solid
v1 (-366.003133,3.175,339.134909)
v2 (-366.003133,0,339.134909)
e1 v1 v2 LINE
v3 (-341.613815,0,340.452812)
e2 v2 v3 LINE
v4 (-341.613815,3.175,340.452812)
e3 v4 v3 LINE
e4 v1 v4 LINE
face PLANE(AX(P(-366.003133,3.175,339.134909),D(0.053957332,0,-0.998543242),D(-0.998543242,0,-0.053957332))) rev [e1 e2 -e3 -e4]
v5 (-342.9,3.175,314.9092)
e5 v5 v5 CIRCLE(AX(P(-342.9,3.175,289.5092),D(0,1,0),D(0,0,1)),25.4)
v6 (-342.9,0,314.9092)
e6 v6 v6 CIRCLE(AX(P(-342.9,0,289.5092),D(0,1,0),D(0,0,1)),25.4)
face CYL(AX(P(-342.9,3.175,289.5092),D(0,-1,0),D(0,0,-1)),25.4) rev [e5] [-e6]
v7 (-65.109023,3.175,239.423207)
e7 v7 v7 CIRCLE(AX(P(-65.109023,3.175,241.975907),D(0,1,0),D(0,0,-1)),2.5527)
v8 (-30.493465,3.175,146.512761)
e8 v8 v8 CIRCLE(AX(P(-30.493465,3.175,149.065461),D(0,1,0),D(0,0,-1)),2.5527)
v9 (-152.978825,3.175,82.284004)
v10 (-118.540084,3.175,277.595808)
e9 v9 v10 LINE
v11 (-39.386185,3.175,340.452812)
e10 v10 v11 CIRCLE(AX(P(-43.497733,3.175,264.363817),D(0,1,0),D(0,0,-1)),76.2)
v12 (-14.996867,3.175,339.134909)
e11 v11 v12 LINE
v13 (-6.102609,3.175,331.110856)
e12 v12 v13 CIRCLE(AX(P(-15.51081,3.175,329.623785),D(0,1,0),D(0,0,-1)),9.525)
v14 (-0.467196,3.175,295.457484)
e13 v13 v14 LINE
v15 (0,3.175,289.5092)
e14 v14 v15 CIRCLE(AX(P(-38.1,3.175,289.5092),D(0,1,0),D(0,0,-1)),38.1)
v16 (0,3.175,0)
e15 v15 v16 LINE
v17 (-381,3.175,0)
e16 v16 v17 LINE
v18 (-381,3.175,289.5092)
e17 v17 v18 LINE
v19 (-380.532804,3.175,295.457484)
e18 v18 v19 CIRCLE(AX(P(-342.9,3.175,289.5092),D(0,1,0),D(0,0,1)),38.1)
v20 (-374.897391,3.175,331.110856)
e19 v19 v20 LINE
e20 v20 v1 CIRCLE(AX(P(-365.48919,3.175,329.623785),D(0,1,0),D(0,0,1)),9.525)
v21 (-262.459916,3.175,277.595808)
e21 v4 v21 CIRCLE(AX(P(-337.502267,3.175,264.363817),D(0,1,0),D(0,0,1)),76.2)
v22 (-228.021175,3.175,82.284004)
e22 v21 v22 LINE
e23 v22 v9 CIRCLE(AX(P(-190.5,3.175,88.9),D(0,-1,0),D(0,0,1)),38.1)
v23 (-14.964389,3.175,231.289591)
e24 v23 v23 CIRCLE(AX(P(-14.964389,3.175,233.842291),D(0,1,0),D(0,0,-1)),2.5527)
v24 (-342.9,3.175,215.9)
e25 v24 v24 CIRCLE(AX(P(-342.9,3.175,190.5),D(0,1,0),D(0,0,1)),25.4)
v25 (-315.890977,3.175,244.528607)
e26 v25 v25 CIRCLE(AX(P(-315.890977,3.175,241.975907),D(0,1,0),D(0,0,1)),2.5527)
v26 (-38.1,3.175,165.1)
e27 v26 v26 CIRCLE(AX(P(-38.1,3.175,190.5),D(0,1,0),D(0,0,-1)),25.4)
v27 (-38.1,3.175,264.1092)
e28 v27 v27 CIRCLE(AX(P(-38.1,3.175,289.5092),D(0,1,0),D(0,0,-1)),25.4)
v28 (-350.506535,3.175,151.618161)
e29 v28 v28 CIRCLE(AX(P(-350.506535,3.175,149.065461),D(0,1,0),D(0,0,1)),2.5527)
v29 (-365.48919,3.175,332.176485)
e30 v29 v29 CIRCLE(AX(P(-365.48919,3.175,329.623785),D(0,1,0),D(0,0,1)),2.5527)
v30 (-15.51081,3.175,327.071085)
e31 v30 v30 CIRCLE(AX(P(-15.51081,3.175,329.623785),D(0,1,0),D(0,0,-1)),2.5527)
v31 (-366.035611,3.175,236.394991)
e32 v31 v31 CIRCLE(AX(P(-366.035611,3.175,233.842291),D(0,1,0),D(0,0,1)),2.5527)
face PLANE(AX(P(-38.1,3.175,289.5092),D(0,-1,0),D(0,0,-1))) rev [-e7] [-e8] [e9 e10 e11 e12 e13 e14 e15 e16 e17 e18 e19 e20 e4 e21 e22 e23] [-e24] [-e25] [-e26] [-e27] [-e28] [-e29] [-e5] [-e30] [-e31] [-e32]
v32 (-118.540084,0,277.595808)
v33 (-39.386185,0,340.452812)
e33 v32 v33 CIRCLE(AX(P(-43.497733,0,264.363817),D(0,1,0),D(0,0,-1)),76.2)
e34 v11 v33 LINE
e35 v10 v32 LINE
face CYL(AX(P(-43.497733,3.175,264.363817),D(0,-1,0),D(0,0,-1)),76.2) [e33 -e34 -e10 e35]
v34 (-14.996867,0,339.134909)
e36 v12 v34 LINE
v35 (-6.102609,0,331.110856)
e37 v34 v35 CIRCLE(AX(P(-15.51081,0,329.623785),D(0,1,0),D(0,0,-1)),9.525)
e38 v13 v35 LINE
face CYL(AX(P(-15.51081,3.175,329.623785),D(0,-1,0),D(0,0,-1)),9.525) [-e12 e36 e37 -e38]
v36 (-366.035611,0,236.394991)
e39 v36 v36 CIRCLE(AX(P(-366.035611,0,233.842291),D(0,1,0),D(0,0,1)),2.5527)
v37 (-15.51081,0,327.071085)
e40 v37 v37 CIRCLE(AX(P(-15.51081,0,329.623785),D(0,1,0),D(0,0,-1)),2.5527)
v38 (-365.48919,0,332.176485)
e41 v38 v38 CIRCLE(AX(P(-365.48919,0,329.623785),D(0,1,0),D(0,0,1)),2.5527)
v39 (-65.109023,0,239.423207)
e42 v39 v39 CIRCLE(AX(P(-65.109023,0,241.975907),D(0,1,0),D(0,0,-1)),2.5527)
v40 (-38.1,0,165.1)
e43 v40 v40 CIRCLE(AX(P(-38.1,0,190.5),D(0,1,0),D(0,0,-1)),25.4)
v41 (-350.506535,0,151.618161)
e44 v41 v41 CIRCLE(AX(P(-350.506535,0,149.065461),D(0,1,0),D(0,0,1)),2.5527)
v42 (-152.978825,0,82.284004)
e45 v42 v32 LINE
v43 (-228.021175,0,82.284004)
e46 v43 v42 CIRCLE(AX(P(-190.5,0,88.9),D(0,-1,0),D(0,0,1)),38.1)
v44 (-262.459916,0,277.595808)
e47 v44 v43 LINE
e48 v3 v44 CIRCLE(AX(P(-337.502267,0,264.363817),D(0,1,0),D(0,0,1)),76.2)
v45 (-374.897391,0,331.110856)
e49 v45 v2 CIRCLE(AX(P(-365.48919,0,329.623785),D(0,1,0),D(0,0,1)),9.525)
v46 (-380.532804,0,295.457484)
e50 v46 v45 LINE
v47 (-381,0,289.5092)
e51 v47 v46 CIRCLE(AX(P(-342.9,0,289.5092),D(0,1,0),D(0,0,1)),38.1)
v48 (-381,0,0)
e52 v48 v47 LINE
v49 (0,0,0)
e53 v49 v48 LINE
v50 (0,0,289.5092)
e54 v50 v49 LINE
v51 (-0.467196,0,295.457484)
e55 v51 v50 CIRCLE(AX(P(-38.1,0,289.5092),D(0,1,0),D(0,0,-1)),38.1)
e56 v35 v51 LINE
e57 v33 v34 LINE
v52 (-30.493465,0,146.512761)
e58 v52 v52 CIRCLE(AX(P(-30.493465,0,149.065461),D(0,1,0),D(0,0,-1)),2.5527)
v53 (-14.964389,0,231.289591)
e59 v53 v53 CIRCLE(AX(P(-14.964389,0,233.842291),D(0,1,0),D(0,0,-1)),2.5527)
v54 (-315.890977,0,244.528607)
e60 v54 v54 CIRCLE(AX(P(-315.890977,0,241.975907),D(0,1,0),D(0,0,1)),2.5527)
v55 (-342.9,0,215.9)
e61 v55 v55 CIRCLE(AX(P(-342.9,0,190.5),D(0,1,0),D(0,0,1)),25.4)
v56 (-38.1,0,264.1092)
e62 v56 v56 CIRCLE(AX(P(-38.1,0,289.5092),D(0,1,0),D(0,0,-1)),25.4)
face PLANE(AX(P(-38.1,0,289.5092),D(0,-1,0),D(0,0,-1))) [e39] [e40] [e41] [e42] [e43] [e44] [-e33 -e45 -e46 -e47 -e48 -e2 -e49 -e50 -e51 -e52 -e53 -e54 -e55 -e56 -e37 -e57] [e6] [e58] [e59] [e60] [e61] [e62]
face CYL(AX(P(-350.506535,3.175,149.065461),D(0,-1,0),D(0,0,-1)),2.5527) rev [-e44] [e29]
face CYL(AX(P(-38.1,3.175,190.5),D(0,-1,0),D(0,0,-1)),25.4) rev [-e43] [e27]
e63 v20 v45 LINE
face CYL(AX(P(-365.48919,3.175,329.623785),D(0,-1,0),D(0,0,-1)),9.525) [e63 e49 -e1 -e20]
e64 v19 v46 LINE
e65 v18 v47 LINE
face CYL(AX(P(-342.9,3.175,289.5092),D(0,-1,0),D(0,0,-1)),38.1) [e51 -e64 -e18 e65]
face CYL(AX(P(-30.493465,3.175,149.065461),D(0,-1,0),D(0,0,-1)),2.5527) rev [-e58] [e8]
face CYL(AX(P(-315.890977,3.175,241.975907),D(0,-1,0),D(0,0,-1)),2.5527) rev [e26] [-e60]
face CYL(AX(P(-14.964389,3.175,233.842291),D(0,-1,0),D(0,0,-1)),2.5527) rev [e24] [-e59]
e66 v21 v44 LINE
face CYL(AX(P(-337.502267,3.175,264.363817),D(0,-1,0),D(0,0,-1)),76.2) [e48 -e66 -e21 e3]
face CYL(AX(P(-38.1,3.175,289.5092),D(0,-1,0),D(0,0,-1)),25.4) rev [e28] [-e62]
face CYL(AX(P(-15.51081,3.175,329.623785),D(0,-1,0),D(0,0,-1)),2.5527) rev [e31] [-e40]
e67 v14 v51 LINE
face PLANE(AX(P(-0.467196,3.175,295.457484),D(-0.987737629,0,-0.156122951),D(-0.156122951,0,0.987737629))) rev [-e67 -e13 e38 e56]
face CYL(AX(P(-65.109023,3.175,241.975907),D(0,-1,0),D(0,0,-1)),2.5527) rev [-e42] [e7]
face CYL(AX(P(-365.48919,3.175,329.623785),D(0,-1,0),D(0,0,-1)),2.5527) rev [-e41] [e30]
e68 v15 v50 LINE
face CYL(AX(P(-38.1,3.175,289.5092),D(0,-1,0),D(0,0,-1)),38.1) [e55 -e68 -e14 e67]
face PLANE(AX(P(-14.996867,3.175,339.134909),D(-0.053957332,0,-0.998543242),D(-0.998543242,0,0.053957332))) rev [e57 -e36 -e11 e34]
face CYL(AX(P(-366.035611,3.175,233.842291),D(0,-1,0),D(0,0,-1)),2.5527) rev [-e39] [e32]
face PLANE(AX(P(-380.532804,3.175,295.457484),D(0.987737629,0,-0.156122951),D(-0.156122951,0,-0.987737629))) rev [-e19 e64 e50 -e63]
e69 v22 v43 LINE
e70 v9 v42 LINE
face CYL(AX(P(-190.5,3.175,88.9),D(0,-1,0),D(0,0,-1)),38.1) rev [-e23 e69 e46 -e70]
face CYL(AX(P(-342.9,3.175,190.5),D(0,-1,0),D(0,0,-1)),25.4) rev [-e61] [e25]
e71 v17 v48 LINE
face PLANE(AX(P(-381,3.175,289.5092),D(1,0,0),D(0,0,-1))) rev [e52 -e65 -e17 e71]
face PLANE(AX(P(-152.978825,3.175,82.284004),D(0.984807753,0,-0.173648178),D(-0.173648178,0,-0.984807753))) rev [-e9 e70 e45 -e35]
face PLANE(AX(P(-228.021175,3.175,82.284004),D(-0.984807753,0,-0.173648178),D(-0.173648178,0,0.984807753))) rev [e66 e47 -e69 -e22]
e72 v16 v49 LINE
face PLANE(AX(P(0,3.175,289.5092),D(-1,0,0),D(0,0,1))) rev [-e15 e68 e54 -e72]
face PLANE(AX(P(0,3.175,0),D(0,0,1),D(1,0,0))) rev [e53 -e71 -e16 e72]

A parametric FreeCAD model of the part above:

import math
import FreeCAD as App
import Part
import Sketcher

V = App.Vector
Q = App.Units.Quantity

doc = App.newDocument("Part")
body = doc.addObject("PartDesign::Body", "Body")

sketch1 = body.newObject("Sketcher::SketchObject", "Sketch")
sketch1.AttachmentSupport = (doc.getObject("XZ_Plane"), [""])
sketch1.MapMode = "FlatFace"
sketch1.addGeometry([
    Part.LineSegment(V(0, 0, 0), V(-381, 0, 0)),
    Part.LineSegment(V(-381, 0, 0), V(-381, 289.5, 0)),
    Part.ArcOfCircle(Part.Circle(V(-342.9, 289.5, 0), V(0, 0, 1), 38.1), math.radians(171.02), math.radians(180)),
    Part.LineSegment(V(-380.5, 295.5, 0), V(-374.9, 331.1, 0)),
    Part.ArcOfCircle(Part.Circle(V(-365.5, 329.6, 0), V(0, 0, 1), 9.5), math.radians(93), math.radians(171)),
    Part.LineSegment(V(-366, 339.1, 0), V(-341.6, 340.5, 0)),
    Part.ArcOfCircle(Part.Circle(V(-337.5, 264.4, 0), V(0, 0, 1), 76.2), math.radians(10), math.radians(93)),
    Part.LineSegment(V(-262.5, 277.6, 0), V(-228, 82.3, 0)),
    Part.ArcOfCircle(Part.Circle(V(-190.5, 88.9, 0), V(0, 0, 1), 38.1), math.radians(-170), math.radians(-10)),
    Part.LineSegment(V(-153, 82.3, 0), V(-118.5, 277.6, 0)),
    Part.ArcOfCircle(Part.Circle(V(-43.5, 264.4, 0), V(0, 0, 1), 76.2), math.radians(87), math.radians(170)),
    Part.LineSegment(V(-39.4, 340.5, 0), V(-15, 339.1, 0)),
    Part.ArcOfCircle(Part.Circle(V(-15.5, 329.6, 0), V(0, 0, 1), 9.5), math.radians(9), math.radians(87)),
    Part.LineSegment(V(-6.1, 331.1, 0), V(-0.5, 295.5, 0)),
    Part.ArcOfCircle(Part.Circle(V(-38.1, 289.5, 0), V(0, 0, 1), 38.1), math.radians(0), math.radians(8.98)),
    Part.LineSegment(V(0, 289.5, 0), V(0, 0, 0)),
    Part.Circle(V(-365.5, 329.6, 0), V(0, 0, 1), 2.6),
    Part.Circle(V(-342.9, 289.5, 0), V(0, 0, 1), 25.4),
    Part.Circle(V(-315.9, 242, 0), V(0, 0, 1), 2.6),
    Part.Circle(V(-15.5, 329.6, 0), V(0, 0, 1), 2.6),
    Part.Circle(V(-38.1, 289.5, 0), V(0, 0, 1), 25.4),
    Part.Circle(V(-65.1, 242, 0), V(0, 0, 1), 2.6),
    Part.Circle(V(-366, 233.8, 0), V(0, 0, 1), 2.6),
    Part.Circle(V(-342.9, 190.5, 0), V(0, 0, 1), 25.4),
    Part.Circle(V(-350.5, 149.1, 0), V(0, 0, 1), 2.6),
    Part.Circle(V(-15, 233.8, 0), V(0, 0, 1), 2.6),
    Part.Circle(V(-38.1, 190.5, 0), V(0, 0, 1), 25.4),
    Part.Circle(V(-30.5, 149.1, 0), V(0, 0, 1), 2.6),
], False)
sketch1.addConstraint([
    Sketcher.Constraint("Coincident", 0, 2, 1, 1),
    Sketcher.Constraint("Tangent", 1, 2, 2, 2),
    Sketcher.Constraint("Tangent", 2, 1, 3, 1),
    Sketcher.Constraint("Tangent", 3, 2, 4, 2),
    Sketcher.Constraint("Tangent", 4, 1, 5, 1),
    Sketcher.Constraint("Tangent", 5, 2, 6, 2),
    Sketcher.Constraint("Tangent", 6, 1, 7, 1),
    Sketcher.Constraint("Tangent", 7, 2, 8, 1),
    Sketcher.Constraint("Tangent", 8, 2, 9, 1),
    Sketcher.Constraint("Tangent", 9, 2, 10, 2),
    Sketcher.Constraint("Tangent", 10, 1, 11, 1),
    Sketcher.Constraint("Tangent", 11, 2, 12, 2),
    Sketcher.Constraint("Tangent", 12, 1, 13, 1),
    Sketcher.Constraint("Tangent", 13, 2, 14, 2),
    Sketcher.Constraint("Tangent", 14, 1, 15, 1),
    Sketcher.Constraint("Coincident", 15, 2, 0, 1),
    Sketcher.Constraint("Horizontal", 0),
    Sketcher.Constraint("Vertical", 1),
    Sketcher.Constraint("Vertical", 15),
    Sketcher.Constraint("Coincident", 15, 2, -1, 1),
    Sketcher.Constraint("Coincident", 16, 3, 4, 3),
    Sketcher.Constraint("Coincident", 17, 3, 2, 3),
    Sketcher.Constraint("Coincident", 19, 3, 12, 3),
    Sketcher.Constraint("Coincident", 20, 3, 14, 3),
    Sketcher.Constraint("Equal", 2, 8),
    Sketcher.Constraint("Equal", 6, 10),
    Sketcher.Constraint("Equal", 4, 12),
    Sketcher.Constraint("Equal", 8, 14),
    Sketcher.Constraint("Equal", 16, 18),
    Sketcher.Constraint("Equal", 18, 19),
    Sketcher.Constraint("Equal", 17, 20),
    Sketcher.Constraint("Equal", 19, 21),
    Sketcher.Constraint("Equal", 21, 22),
    Sketcher.Constraint("Equal", 20, 23),
    Sketcher.Constraint("Equal", 22, 24),
    Sketcher.Constraint("Equal", 24, 25),
    Sketcher.Constraint("Equal", 23, 26),
    Sketcher.Constraint("Equal", 25, 27),
    Sketcher.Constraint("Horizontal", 6, 3, 10, 3),
    Sketcher.Constraint("Horizontal", 4, 3, 12, 3),
    Sketcher.Constraint("Horizontal", 2, 3, 14, 3),
    Sketcher.Constraint("Horizontal", 18, 3, 21, 3),
    Sketcher.Constraint("Horizontal", 22, 3, 25, 3),
    Sketcher.Constraint("Horizontal", 23, 3, 26, 3),
    Sketcher.Constraint("Horizontal", 24, 3, 27, 3),
    Sketcher.Constraint("Horizontal", 7, 2, 8, 2),
    Sketcher.Constraint("Horizontal", 3, 2, 12, 1),
    Sketcher.Constraint("Vertical", 17, 3, 23, 3),
    Sketcher.Constraint("Vertical", 20, 3, 26, 3),
    Sketcher.Constraint("Equal", 5, 11),
    Sketcher.Constraint("Diameter", 17, Q("2 in")),
    Sketcher.Constraint("Radius", 6, Q("3 in")),
    Sketcher.Constraint("Radius", 2, Q("1.5 in")),
    Sketcher.Constraint("DistanceX", 0, 2, 0, 1, Q("15 in")),
    Sketcher.Constraint("Diameter", 16, Q("0.201 in")),
    Sketcher.Constraint("Angle", 7, Q("-80 deg")),
    Sketcher.Constraint("Radius", 4, Q("0.375 in")),
    Sketcher.Constraint("DistanceY", -1, 1, 8, 3, Q("3.5 in")),
    Sketcher.Constraint("DistanceY", -1, 1, 23, 3, Q("7.5 in")),
    Sketcher.Constraint("DistanceY", 1, 1, 1, 2, Q("11.398 in")),
    Sketcher.Constraint("Distance", 5, 24.424899),
    Sketcher.Constraint("DistanceY", 2, 1, 4, 3, 34.1663),
    Sketcher.Constraint("DistanceX", 3, 2, 16, 3, 9.408201),
    Sketcher.Constraint("DistanceY", 18, 3, 6, 1, 35.619901),
    Sketcher.Constraint("DistanceX", 18, 3, 7, 2, 87.869802),
    Sketcher.Constraint("DistanceX", 8, 2, 21, 3, 87.869802),
    Sketcher.Constraint("DistanceX", 22, 3, -1, 1, 366.035611),
    Sketcher.Constraint("DistanceY", -1, 1, 22, 3, 233.842291),
    Sketcher.Constraint("DistanceY", -1, 1, 24, 3, 149.065461),
    Sketcher.Constraint("DistanceX", 25, 3, -1, 1, 14.964389),
    Sketcher.Constraint("DistanceX", 24, 3, 18, 3, 34.615558),
    Sketcher.Constraint("DistanceX", 21, 3, 27, 3, 34.615558),
])
pad1 = body.newObject("PartDesign::Pad", "Pad")
pad1.Profile = sketch1
pad1.Length = Q("0.125 in")
pad1.Reversed = True

doc.recompute()
